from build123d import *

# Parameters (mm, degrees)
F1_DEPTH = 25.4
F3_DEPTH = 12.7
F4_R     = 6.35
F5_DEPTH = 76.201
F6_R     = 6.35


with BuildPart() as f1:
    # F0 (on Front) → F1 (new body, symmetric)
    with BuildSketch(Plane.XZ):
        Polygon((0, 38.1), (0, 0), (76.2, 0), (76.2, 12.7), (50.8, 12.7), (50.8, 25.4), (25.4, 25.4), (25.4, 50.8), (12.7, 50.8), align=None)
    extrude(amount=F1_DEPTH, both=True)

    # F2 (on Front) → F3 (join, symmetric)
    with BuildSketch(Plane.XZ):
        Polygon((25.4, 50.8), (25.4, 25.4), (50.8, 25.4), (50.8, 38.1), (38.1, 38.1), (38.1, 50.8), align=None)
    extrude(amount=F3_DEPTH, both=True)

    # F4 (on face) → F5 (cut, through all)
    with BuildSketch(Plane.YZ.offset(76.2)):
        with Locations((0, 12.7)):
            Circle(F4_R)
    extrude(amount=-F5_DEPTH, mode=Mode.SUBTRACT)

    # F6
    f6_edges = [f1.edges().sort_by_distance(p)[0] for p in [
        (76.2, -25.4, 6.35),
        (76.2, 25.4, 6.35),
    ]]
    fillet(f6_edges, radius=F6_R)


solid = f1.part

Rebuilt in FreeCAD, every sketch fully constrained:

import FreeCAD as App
import Part
import Sketcher

V = App.Vector
Q = App.Units.Quantity


def edges_at(feature, points):
    """Names of the edges that pass closest to the given points."""
    edges = feature.Shape.Edges
    near = lambda p: min(range(len(edges)), key=lambda i: edges[i].distToShape(Part.Vertex(*p))[0])
    return sorted({f"Edge{near(p) + 1}" for p in points})


def add_polygon(sketch, points):
    """Adds a closed chain of lines whose ends are joined by coincident constraints."""
    first, n = sketch.GeometryCount, len(points)
    for a, b in zip(points, points[1:] + points[:1]):
        sketch.addGeometry(Part.LineSegment(App.Vector(*a, 0), App.Vector(*b, 0)), False)
    for i in range(n):
        sketch.addConstraint(Sketcher.Constraint("Coincident", first + i, 2, first + (i + 1) % n, 1))

doc = App.newDocument("Part")
body = doc.addObject("PartDesign::Body", "Body")

sketch1 = body.newObject("Sketcher::SketchObject", "Sketch")
sketch1.AttachmentSupport = (doc.getObject("XZ_Plane"), [""])
sketch1.MapMode = "FlatFace"
add_polygon(sketch1, [(0, 38), (0, 0), (76, 0), (76, 13), (51, 13), (51, 25), (25, 25), (25, 51), (13, 51)])
sketch1.addConstraint([
    Sketcher.Constraint("Vertical", 0),
    Sketcher.Constraint("Horizontal", 1),
    Sketcher.Constraint("Vertical", 2),
    Sketcher.Constraint("Horizontal", 3),
    Sketcher.Constraint("Vertical", 4),
    Sketcher.Constraint("Horizontal", 5),
    Sketcher.Constraint("Vertical", 6),
    Sketcher.Constraint("Horizontal", 7),
    Sketcher.Constraint("Coincident", 0, 2, -1, 1),
    Sketcher.Constraint("Equal", 3, 5),
    Sketcher.Constraint("Equal", 7, 2),
    Sketcher.Constraint("Equal", 2, 4),
    Sketcher.Constraint("Equal", 5, 6),
    Sketcher.Constraint("DistanceX", 1, 1, 1, 2, Q("3 in")),
    Sketcher.Constraint("DistanceX", 3, 2, 3, 1, Q("1 in")),
    Sketcher.Constraint("DistanceX", 7, 2, 7, 1, Q("0.5 in")),
    Sketcher.Constraint("DistanceY", 0, 2, 0, 1, Q("1.5 in")),
])
pad1 = body.newObject("PartDesign::Pad", "Pad")
pad1.Profile = sketch1
pad1.Length = Q("2 in")
pad1.Midplane = True

sketch2 = body.newObject("Sketcher::SketchObject", "Sketch001")
sketch2.AttachmentSupport = (doc.getObject("XZ_Plane"), [""])
sketch2.MapMode = "FlatFace"
add_polygon(sketch2, [(25, 51), (25, 25), (51, 25), (51, 38), (38, 38), (38, 51)])
sketch2.addConstraint([
    Sketcher.Constraint("Vertical", 0),
    Sketcher.Constraint("Horizontal", 1),
    Sketcher.Constraint("Vertical", 2),
    Sketcher.Constraint("Horizontal", 3),
    Sketcher.Constraint("Vertical", 4),
    Sketcher.Constraint("Horizontal", 5),
    Sketcher.Constraint("Equal", 3, 5),
    Sketcher.Constraint("Equal", 1, 0),
    Sketcher.Constraint("Equal", 5, 2),
    Sketcher.Constraint("DistanceX", 1, 1, 1, 2, Q("1 in")),
    Sketcher.Constraint("DistanceX", -1, 1, 0, 2, Q("1 in")),
    Sketcher.Constraint("DistanceY", -1, 1, 0, 2, Q("1 in")),
])
pad2 = body.newObject("PartDesign::Pad", "Pad001")
pad2.Profile = sketch2
pad2.Length = Q("1 in")
pad2.Midplane = True

sketch3 = body.newObject("Sketcher::SketchObject", "Sketch002")
sketch3.AttachmentSupport = (doc.getObject("YZ_Plane"), [""])
sketch3.MapMode = "FlatFace"
sketch3.AttachmentOffset = App.Placement(V(0, 0, 3 * 25.4), App.Rotation())
sketch3.addGeometry(Part.Circle(V(0, 13, 0), V(0, 0, 1), 6), False)
sketch3.addConstraint([
    Sketcher.Constraint("PointOnObject", 0, 3, -2),
    Sketcher.Constraint("Diameter", 0, Q("0.5 in")),
    Sketcher.Constraint("DistanceY", -1, 1, 0, 3, Q("0.5 in")),
])
pocket1 = body.newObject("PartDesign::Pocket", "Pocket")
pocket1.Profile = sketch3
pocket1.Type = "ThroughAll"
doc.recompute()

fillet = body.newObject("PartDesign::Fillet", "Fillet")
fillet.Base = (pocket1, edges_at(pocket1, [(76.2, -25.4, 6.35), (76.2, 25.4, 6.35)]))
fillet.Radius = Q("0.25 in")

doc.recompute()
